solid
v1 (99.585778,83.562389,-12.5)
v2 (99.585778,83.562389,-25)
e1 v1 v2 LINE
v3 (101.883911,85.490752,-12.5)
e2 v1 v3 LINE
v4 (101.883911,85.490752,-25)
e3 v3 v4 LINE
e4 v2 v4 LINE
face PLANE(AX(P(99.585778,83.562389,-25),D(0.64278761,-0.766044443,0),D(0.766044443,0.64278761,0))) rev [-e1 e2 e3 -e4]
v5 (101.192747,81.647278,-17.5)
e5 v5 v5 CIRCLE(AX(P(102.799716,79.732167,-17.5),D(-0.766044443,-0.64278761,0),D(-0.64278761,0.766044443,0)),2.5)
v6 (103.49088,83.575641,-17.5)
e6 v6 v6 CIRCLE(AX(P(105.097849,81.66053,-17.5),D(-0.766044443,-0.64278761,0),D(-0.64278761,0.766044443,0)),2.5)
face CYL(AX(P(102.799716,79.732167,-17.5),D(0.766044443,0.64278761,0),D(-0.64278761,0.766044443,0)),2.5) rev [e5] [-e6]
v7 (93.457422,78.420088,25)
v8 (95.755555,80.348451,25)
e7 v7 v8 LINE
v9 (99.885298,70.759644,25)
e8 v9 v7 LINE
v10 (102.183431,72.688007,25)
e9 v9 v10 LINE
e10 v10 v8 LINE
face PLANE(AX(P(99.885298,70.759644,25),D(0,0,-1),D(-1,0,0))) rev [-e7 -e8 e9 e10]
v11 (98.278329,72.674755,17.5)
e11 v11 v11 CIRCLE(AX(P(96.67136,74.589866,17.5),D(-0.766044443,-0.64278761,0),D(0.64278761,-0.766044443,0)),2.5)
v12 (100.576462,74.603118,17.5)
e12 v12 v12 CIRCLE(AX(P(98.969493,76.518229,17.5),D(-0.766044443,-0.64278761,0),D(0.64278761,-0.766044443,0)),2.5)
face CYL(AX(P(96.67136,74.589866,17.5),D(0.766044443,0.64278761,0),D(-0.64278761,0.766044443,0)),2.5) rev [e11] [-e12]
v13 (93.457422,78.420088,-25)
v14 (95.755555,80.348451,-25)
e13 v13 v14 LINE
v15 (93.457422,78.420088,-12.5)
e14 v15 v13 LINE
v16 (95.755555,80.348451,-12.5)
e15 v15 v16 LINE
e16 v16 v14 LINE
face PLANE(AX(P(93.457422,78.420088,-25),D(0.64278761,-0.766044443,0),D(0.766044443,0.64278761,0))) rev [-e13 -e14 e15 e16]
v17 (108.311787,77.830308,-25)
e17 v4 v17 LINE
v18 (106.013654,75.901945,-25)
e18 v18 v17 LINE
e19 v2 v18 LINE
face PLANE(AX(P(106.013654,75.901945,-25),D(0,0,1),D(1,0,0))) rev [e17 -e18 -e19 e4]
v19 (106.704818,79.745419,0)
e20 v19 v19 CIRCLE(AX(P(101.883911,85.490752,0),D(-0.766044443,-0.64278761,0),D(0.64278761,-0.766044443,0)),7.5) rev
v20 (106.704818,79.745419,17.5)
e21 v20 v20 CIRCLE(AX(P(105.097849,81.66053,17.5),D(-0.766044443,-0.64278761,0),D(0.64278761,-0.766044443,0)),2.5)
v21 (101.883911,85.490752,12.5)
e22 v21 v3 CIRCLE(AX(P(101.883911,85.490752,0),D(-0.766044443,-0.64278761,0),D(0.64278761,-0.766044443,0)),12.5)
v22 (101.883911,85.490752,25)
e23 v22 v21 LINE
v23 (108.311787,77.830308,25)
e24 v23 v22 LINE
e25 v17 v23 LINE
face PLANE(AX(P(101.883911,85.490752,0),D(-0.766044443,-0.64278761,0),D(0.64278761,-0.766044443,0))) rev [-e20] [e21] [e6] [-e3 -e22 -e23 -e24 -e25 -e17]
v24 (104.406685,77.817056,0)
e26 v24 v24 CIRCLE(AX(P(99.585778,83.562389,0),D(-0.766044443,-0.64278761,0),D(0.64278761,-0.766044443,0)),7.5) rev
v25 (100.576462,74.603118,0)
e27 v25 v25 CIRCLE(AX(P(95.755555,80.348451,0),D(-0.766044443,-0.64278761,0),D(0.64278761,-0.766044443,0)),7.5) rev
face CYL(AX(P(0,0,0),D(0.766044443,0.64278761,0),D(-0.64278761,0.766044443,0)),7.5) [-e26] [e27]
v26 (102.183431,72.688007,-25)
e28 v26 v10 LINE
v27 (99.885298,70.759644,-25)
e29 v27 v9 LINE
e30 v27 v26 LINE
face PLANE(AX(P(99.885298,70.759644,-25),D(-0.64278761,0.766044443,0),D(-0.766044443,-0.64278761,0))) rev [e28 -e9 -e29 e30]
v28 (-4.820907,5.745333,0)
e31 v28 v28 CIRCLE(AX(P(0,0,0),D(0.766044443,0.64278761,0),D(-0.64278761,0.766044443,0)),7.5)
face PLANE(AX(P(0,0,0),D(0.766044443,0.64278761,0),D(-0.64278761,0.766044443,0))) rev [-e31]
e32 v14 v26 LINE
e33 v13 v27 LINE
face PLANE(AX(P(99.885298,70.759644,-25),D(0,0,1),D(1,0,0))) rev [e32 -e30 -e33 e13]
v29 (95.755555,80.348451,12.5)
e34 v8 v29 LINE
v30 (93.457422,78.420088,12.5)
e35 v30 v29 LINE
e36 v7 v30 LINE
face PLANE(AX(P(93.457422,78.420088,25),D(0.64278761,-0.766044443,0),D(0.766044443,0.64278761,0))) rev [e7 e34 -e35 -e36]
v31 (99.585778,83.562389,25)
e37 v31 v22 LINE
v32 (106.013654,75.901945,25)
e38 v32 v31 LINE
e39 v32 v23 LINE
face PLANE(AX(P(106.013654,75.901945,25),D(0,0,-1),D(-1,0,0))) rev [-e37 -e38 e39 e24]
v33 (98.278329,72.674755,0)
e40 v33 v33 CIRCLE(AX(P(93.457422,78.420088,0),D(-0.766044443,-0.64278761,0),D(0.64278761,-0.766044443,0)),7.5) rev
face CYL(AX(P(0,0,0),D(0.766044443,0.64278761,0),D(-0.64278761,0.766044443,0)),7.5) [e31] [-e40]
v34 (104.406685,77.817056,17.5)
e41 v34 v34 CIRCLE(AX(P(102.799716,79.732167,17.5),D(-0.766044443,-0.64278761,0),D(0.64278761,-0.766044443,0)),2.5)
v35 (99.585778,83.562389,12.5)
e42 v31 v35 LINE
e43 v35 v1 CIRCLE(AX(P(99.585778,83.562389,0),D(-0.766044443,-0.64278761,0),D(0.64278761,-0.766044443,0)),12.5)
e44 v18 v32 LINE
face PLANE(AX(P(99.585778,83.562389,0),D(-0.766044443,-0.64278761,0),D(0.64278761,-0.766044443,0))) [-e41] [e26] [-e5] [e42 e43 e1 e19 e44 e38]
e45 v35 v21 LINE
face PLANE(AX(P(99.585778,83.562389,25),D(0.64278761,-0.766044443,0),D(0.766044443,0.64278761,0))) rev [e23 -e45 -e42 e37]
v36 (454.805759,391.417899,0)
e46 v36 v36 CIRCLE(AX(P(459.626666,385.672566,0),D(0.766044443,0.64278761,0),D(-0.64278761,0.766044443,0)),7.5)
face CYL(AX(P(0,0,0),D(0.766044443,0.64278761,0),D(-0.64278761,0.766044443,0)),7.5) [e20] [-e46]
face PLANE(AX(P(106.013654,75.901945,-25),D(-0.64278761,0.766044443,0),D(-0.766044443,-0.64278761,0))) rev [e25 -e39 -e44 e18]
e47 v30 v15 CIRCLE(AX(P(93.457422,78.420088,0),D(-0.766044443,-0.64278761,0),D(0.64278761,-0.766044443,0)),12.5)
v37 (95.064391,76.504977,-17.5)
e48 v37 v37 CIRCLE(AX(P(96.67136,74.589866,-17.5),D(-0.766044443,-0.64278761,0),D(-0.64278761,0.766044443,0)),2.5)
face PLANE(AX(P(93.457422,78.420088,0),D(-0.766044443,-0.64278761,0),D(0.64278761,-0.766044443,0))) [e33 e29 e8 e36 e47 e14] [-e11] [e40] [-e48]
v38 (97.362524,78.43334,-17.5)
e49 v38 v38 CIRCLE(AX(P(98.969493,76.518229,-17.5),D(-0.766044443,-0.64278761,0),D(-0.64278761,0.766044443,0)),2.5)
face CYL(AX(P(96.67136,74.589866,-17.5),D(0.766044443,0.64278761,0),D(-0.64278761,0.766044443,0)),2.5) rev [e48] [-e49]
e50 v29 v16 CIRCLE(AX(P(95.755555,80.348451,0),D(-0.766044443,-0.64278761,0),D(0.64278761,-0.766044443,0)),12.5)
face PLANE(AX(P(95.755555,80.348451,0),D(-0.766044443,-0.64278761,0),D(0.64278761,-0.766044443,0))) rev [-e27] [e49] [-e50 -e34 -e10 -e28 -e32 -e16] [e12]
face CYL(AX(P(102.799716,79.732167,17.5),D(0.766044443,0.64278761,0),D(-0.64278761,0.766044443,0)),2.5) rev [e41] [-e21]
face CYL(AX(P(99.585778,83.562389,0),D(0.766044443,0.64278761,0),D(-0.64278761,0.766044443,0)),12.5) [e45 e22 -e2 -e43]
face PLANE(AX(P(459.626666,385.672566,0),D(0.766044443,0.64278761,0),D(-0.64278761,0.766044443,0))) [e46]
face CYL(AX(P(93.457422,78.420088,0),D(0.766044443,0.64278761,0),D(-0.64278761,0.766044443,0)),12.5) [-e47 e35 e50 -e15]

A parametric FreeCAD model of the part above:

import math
import FreeCAD as App
import Part
import Sketcher
from FreeCAD import Vector

doc = App.newDocument("Part")
body = doc.addObject("PartDesign::Body", "Body")

sketch1 = body.newObject("Sketcher::SketchObject", "Sketch")
sketch1.Placement = App.Placement(Vector(0, 0, 0), App.Rotation(Vector(-0.64278761, 0.766044443, 0), Vector(0, 0, 1), Vector(0.766044443, 0.64278761, 0), "ZXY"))
sketch1.addGeometry(Part.Circle(Vector(0, 0, 0), Vector(0, 0, 1), 7.5), False)
sketch1.addConstraint([
    Sketcher.Constraint("Coincident", 0, 3, -1, 1),
    Sketcher.Constraint("Diameter", 0, 15.0),
])

sketch2 = body.newObject("Sketcher::SketchObject", "Sketch001")
sketch2.Placement = App.Placement(Vector(0, 0, 0), App.Rotation(Vector(0.766044443, 0.64278761, 0), Vector(0, 0, 1), Vector(0.64278761, -0.766044443, 0), "ZXY"))
sketch2.addGeometry(Part.LineSegment(Vector(0, 0, 0), Vector(600, 0, 0)), False)
sketch2.addConstraint([
    Sketcher.Constraint("Horizontal", 0),
    Sketcher.Constraint("Coincident", 0, 1, -1, 1),
    Sketcher.Constraint("DistanceX", 0, 1, 0, 2, 600.0),
])
doc.recompute()

additivepipe = body.newObject("PartDesign::AdditivePipe", "AdditivePipe")
additivepipe.Profile = sketch1
additivepipe.Spine = (sketch2, ["Edge1"])

sketch3 = body.newObject("Sketcher::SketchObject", "Sketch002")
sketch3.Placement = App.Placement(Vector(95.755555, 80.348451, 0), App.Rotation(Vector(0, 0, 1), Vector(-0.64278761, 0.766044443, 0), Vector(-0.766044443, -0.64278761, 0), "ZXY"))
sketch3.addGeometry([
    Part.LineSegment(Vector(-25, -10, 0), Vector(25, -10, 0)),
    Part.LineSegment(Vector(25, -10, 0), Vector(25, 0, 0)),
    Part.LineSegment(Vector(25, 0, 0), Vector(12.5, 0, 0)),
    Part.ArcOfCircle(Part.Circle(Vector(0, 0, 0), Vector(0, 0, 1), 12.5), math.radians(0), math.radians(180)),
    Part.LineSegment(Vector(-12.5, 0, 0), Vector(-25, 0, 0)),
    Part.LineSegment(Vector(-25, 0, 0), Vector(-25, -10, 0)),
    Part.Circle(Vector(-17.5, -5, 0), Vector(0, 0, 1), 2.5),
    Part.Circle(Vector(17.5, -5, 0), Vector(0, 0, 1), 2.5),
], False)
sketch3.addConstraint([
    Sketcher.Constraint("Coincident", 0, 2, 1, 1),
    Sketcher.Constraint("Coincident", 1, 2, 2, 1),
    Sketcher.Constraint("Coincident", 2, 2, 3, 1),
    Sketcher.Constraint("Coincident", 3, 2, 4, 1),
    Sketcher.Constraint("Coincident", 4, 2, 5, 1),
    Sketcher.Constraint("Coincident", 5, 2, 0, 1),
    Sketcher.Constraint("Horizontal", 0),
    Sketcher.Constraint("Vertical", 1),
    Sketcher.Constraint("Horizontal", 2),
    Sketcher.Constraint("Horizontal", 4),
    Sketcher.Constraint("Vertical", 5),
    Sketcher.Constraint("Coincident", 3, 3, -1, 1),
    Sketcher.Constraint("Equal", 6, 7),
    Sketcher.Constraint("Symmetric", 1, 2, 4, 2, -1, 1),
    Sketcher.Constraint("Symmetric", 6, 3, 7, 3, -2),
    Sketcher.Constraint("PointOnObject", 1, 2, -1),
    Sketcher.Constraint("Diameter", 6, 5.0),
    Sketcher.Constraint("Radius", 3, 12.5),
    Sketcher.Constraint("DistanceX", 0, 1, 0, 2, 50.0),
    Sketcher.Constraint("DistanceY", 1, 1, 1, 2, 10.0),
    Sketcher.Constraint("DistanceY", 6, 3, -1, 1, 5.0),
    Sketcher.Constraint("DistanceX", 6, 3, 7, 3, 35.0),
])
pad1 = body.newObject("PartDesign::Pad", "Pad")
pad1.Profile = sketch3
pad1.Length = 3

sketch4 = body.newObject("Sketcher::SketchObject", "Sketch003")
sketch4.Placement = App.Placement(Vector(101.883911, 85.490752, 0), App.Rotation(Vector(0, 0, 1), Vector(-0.64278761, 0.766044443, 0), Vector(-0.766044443, -0.64278761, 0), "ZXY"))
sketch4.addGeometry([
    Part.LineSegment(Vector(-25, -10, 0), Vector(25, -10, 0)),
    Part.LineSegment(Vector(25, -10, 0), Vector(25, 0, 0)),
    Part.LineSegment(Vector(25, 0, 0), Vector(12.5, 0, 0)),
    Part.ArcOfCircle(Part.Circle(Vector(0, 0, 0), Vector(0, 0, 1), 12.5), math.radians(0), math.radians(180)),
    Part.LineSegment(Vector(-12.5, 0, 0), Vector(-25, 0, 0)),
    Part.LineSegment(Vector(-25, 0, 0), Vector(-25, -10, 0)),
    Part.Circle(Vector(-17.5, -5, 0), Vector(0, 0, 1), 2.5),
    Part.Circle(Vector(17.5, -5, 0), Vector(0, 0, 1), 2.5),
], False)
sketch4.addConstraint([
    Sketcher.Constraint("Coincident", 0, 2, 1, 1),
    Sketcher.Constraint("Coincident", 1, 2, 2, 1),
    Sketcher.Constraint("Coincident", 2, 2, 3, 1),
    Sketcher.Constraint("Coincident", 3, 2, 4, 1),
    Sketcher.Constraint("Coincident", 4, 2, 5, 1),
    Sketcher.Constraint("Coincident", 5, 2, 0, 1),
    Sketcher.Constraint("Horizontal", 0),
    Sketcher.Constraint("Vertical", 1),
    Sketcher.Constraint("Horizontal", 2),
    Sketcher.Constraint("Horizontal", 4),
    Sketcher.Constraint("Vertical", 5),
    Sketcher.Constraint("Coincident", 3, 3, -1, 1),
    Sketcher.Constraint("Equal", 6, 7),
    Sketcher.Constraint("Symmetric", 1, 2, 4, 2, -1, 1),
    Sketcher.Constraint("Symmetric", 6, 3, 7, 3, -2),
    Sketcher.Constraint("PointOnObject", 1, 2, -1),
    Sketcher.Constraint("Diameter", 6, 5.0),
    Sketcher.Constraint("Radius", 3, 12.5),
    Sketcher.Constraint("DistanceX", 0, 1, 0, 2, 50.0),
    Sketcher.Constraint("DistanceY", 1, 1, 1, 2, 10.0),
    Sketcher.Constraint("DistanceY", 6, 3, -1, 1, 5.0),
    Sketcher.Constraint("DistanceX", 6, 3, 7, 3, 35.0),
])
pad2 = body.newObject("PartDesign::Pad", "Pad001")
pad2.Profile = sketch4
pad2.Length = 3

doc.recompute()
